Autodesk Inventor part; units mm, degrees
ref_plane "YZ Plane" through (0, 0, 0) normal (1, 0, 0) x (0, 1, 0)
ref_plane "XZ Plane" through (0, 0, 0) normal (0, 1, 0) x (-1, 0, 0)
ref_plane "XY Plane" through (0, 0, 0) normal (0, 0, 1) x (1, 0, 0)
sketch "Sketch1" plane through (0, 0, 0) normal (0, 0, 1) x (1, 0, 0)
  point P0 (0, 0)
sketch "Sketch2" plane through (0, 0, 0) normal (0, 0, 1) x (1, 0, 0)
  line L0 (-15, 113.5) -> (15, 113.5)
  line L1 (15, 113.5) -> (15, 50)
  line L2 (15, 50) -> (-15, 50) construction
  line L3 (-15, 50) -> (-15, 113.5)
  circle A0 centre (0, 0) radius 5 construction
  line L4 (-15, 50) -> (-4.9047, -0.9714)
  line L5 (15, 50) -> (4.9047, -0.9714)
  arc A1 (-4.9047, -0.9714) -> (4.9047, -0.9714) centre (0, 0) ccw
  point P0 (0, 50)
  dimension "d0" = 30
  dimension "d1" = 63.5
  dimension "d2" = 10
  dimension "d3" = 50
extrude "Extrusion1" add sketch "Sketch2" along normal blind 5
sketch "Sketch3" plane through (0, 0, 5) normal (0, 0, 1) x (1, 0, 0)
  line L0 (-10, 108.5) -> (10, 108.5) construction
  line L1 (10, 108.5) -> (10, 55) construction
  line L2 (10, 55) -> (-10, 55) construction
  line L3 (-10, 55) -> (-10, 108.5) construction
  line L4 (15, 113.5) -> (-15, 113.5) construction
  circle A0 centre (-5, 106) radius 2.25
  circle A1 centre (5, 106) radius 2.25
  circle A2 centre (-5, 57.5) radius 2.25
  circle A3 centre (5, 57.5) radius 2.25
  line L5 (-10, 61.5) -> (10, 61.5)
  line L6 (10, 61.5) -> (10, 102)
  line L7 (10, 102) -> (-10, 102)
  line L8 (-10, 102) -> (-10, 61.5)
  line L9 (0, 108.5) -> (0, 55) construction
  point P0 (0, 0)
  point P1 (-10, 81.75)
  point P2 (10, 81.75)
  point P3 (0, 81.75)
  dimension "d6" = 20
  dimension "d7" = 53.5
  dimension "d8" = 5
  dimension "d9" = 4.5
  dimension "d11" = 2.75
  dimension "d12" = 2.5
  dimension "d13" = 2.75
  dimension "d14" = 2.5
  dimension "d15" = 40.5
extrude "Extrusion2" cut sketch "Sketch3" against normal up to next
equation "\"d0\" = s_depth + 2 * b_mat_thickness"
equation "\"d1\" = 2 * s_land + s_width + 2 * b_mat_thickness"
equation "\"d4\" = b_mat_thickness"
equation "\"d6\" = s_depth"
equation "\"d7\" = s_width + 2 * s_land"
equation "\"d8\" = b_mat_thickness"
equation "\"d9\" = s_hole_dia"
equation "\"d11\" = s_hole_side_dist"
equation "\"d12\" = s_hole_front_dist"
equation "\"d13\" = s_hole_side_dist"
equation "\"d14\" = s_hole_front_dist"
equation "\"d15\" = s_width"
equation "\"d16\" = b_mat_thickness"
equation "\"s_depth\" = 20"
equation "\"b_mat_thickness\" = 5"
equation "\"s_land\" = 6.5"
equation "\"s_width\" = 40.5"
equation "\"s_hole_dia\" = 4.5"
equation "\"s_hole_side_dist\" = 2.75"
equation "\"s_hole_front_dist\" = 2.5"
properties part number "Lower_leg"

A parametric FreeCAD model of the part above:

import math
import FreeCAD as App
import Part
import Sketcher
Q = App.Units.Quantity


def add_polygon(sketch, points):
    """Adds a closed chain of lines whose ends are joined by coincident constraints."""
    first, n = sketch.GeometryCount, len(points)
    for a, b in zip(points, points[1:] + points[:1]):
        sketch.addGeometry(Part.LineSegment(App.Vector(*a, 0), App.Vector(*b, 0)), False)
    for i in range(n):
        sketch.addConstraint(Sketcher.Constraint("Coincident", first + i, 2, first + (i + 1) % n, 1))

doc = App.newDocument("Part")
body = doc.addObject("PartDesign::Body", "Body")

sketch1 = body.newObject("Sketcher::SketchObject", "Sketch")
sketch1.AttachmentSupport = (doc.getObject("XY_Plane"), [""])
sketch1.MapMode = "FlatFace"
sketch1.addGeometry([
    Part.LineSegment(App.Vector(15, 113.5, 0), App.Vector(-15, 113.5, 0)),
    Part.LineSegment(App.Vector(-15, 113.5, 0), App.Vector(-15, 50, 0)),
    Part.LineSegment(App.Vector(-15, 50, 0), App.Vector(-4.9, -1, 0)),
    Part.ArcOfCircle(Part.Circle(App.Vector(0, 0, 0), App.Vector(0, 0, 1), 5), math.radians(-169), math.radians(-11)),
    Part.LineSegment(App.Vector(4.9, -1, 0), App.Vector(15, 50, 0)),
    Part.LineSegment(App.Vector(15, 50, 0), App.Vector(15, 113.5, 0)),
], False)
sketch1.addConstraint([
    Sketcher.Constraint("Coincident", 0, 2, 1, 1),
    Sketcher.Constraint("Coincident", 1, 2, 2, 1),
    Sketcher.Constraint("Tangent", 2, 2, 3, 1),
    Sketcher.Constraint("Tangent", 3, 2, 4, 1),
    Sketcher.Constraint("Coincident", 4, 2, 5, 1),
    Sketcher.Constraint("Coincident", 5, 2, 0, 1),
    Sketcher.Constraint("Horizontal", 0),
    Sketcher.Constraint("Vertical", 1),
    Sketcher.Constraint("Vertical", 5),
    Sketcher.Constraint("Coincident", 3, 3, -1, 1),
    Sketcher.Constraint("Symmetric", 1, 2, 4, 2, -2),
    Sketcher.Constraint("Radius", 3, Q("5 mm")),
    Sketcher.Constraint("DistanceX", 0, 2, 0, 1, Q("30 mm")),
    Sketcher.Constraint("DistanceY", 1, 2, 1, 1, Q("63.5 mm")),
    Sketcher.Constraint("DistanceY", -1, 1, 1, 2, Q("50 mm")),
])
pad1 = body.newObject("PartDesign::Pad", "Pad")
pad1.Profile = sketch1
pad1.Length = 5

sketch2 = body.newObject("Sketcher::SketchObject", "Sketch001")
sketch2.AttachmentSupport = (doc.getObject("XY_Plane"), [""])
sketch2.MapMode = "FlatFace"
sketch2.AttachmentOffset = App.Placement(App.Vector(0, 0, 5), App.Rotation())
sketch2.addGeometry(Part.Circle(App.Vector(-5, 106, 0), App.Vector(0, 0, 1), 2.2), False)
sketch2.addGeometry(Part.Circle(App.Vector(5, 106, 0), App.Vector(0, 0, 1), 2.2), False)
sketch2.addGeometry(Part.Circle(App.Vector(-5, 57.5, 0), App.Vector(0, 0, 1), 2.2), False)
sketch2.addGeometry(Part.Circle(App.Vector(5, 57.5, 0), App.Vector(0, 0, 1), 2.2), False)
add_polygon(sketch2, [(-10, 102), (-10, 61.5), (10, 61.5), (10, 102)])
sketch2.addConstraint([
    Sketcher.Constraint("Vertical", 4),
    Sketcher.Constraint("Horizontal", 5),
    Sketcher.Constraint("Vertical", 6),
    Sketcher.Constraint("Horizontal", 7),
    Sketcher.Constraint("Equal", 0, 1),
    Sketcher.Constraint("Equal", 1, 2),
    Sketcher.Constraint("Equal", 2, 3),
    Sketcher.Constraint("Symmetric", 0, 3, 1, 3, -2),
    Sketcher.Constraint("Symmetric", 2, 3, 3, 3, -2),
    Sketcher.Constraint("Vertical", 0, 3, 2, 3),
    Sketcher.Constraint("Diameter", 0, Q("4.5 mm")),
    Sketcher.Constraint("DistanceX", 5, 1, 5, 2, Q("20 mm")),
    Sketcher.Constraint("DistanceY", 4, 2, 4, 1, Q("40.5 mm")),
    Sketcher.Constraint("DistanceX", 0, 3, -1, 1, Q("5 mm")),
    Sketcher.Constraint("DistanceX", 4, 2, 2, 3, Q("5 mm")),
    Sketcher.Constraint("DistanceY", -1, 1, 0, 3, Q("106 mm")),
    Sketcher.Constraint("DistanceY", -1, 1, 6, 2, Q("102 mm")),
    Sketcher.Constraint("DistanceY", 2, 3, 4, 2, Q("4 mm")),
])
pocket1 = body.newObject("PartDesign::Pocket", "Pocket")
pocket1.Profile = sketch2
pocket1.Type = "UpToFirst"

doc.recompute()
